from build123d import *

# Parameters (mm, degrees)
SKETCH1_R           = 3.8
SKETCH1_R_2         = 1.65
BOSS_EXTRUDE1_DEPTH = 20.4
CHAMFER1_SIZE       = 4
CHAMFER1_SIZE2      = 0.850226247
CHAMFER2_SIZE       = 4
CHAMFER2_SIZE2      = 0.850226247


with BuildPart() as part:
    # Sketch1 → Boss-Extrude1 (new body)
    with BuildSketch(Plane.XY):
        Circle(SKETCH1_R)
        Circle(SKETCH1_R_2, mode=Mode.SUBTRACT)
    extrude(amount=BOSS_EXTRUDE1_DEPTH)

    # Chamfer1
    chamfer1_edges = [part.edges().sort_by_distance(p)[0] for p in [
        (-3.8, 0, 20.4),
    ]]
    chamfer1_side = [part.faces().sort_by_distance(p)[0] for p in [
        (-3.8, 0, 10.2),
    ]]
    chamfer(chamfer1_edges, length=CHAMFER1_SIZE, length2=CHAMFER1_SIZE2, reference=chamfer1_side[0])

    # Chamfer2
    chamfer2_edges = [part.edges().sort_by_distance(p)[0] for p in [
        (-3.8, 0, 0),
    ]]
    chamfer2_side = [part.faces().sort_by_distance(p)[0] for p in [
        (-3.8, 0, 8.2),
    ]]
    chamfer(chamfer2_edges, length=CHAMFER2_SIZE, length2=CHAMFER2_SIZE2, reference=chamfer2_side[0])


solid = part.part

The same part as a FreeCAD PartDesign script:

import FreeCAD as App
import Part
import Sketcher
from FreeCAD import Vector


def edges_at(feature, points):
    """Names of the edges that pass closest to the given points."""
    edges = feature.Shape.Edges
    near = lambda p: min(range(len(edges)), key=lambda i: edges[i].distToShape(Part.Vertex(*p))[0])
    return sorted({f"Edge{near(p) + 1}" for p in points})

doc = App.newDocument("Part")
body = doc.addObject("PartDesign::Body", "Body")

sketch1 = doc.addObject("Sketcher::SketchObject", "Sketch")
body.addObject(sketch1)
sketch1.AttachmentSupport = (doc.XY_Plane, [""])
sketch1.MapMode = "FlatFace"
sketch1.addGeometry([
    Part.Circle(Vector(0, 0, 0), Vector(0, 0, 1), 3.8),
    Part.Circle(Vector(0, 0, 0), Vector(0, 0, 1), 1.6),
], False)
sketch1.addConstraint([
    Sketcher.Constraint("Coincident", 0, 3, -1, 1),
    Sketcher.Constraint("Coincident", 1, 3, -1, 1),
    Sketcher.Constraint("Diameter", 0, 7.6),
    Sketcher.Constraint("Diameter", 1, 3.3),
])
pad1 = doc.addObject("PartDesign::Pad", "Pad")
body.addObject(pad1)
pad1.Profile = sketch1
pad1.Length = 20.4
doc.recompute()

chamfer = doc.addObject("PartDesign::Chamfer", "Chamfer")
body.addObject(chamfer)
chamfer.Base = (pad1, edges_at(pad1, [(-3.8, 0, 20.4)]))
chamfer.ChamferType = "Two distances"
chamfer.Size = 4
chamfer.Size2 = 0.850226
doc.recompute()

chamfer2 = doc.addObject("PartDesign::Chamfer", "Chamfer001")
body.addObject(chamfer2)
chamfer2.Base = (chamfer, edges_at(chamfer, [(-3.8, 0, 0)]))
chamfer2.ChamferType = "Two distances"
chamfer2.Size = 4
chamfer2.Size2 = 0.850226

doc.recompute()
